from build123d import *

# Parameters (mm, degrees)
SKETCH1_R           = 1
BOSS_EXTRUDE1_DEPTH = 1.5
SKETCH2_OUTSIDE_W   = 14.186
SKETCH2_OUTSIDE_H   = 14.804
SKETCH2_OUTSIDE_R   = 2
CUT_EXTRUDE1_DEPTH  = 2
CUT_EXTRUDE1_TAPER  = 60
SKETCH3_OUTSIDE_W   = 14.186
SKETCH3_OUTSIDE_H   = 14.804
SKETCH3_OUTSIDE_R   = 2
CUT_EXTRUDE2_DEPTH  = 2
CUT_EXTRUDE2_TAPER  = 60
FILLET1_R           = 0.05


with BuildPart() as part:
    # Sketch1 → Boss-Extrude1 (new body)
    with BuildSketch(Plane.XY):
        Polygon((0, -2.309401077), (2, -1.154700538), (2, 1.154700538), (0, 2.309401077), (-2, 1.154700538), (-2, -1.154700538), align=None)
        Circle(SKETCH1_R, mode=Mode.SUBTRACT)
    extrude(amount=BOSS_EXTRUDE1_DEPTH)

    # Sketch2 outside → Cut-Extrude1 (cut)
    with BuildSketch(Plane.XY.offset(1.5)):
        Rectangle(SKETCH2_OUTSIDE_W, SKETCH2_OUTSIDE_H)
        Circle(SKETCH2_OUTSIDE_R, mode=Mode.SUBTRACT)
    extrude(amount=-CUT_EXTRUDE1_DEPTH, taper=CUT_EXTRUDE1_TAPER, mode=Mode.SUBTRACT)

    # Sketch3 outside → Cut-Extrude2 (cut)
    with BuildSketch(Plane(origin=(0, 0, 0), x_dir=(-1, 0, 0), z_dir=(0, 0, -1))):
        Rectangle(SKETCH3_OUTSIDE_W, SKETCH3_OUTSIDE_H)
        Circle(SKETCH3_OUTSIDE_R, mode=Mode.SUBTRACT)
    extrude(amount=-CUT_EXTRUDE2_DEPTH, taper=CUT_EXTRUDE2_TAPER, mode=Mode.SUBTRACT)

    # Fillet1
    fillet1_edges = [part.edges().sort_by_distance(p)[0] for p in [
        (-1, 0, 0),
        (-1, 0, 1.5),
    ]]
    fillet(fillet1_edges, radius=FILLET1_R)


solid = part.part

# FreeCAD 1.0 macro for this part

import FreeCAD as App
import Part
import Sketcher

V = App.Vector
Q = App.Units.Quantity


def edges_at(feature, points):
    """Names of the edges that pass closest to the given points."""
    edges = feature.Shape.Edges
    near = lambda p: min(range(len(edges)), key=lambda i: edges[i].distToShape(Part.Vertex(*p))[0])
    return sorted({f"Edge{near(p) + 1}" for p in points})


def add_polygon(sketch, points):
    """Adds a closed chain of lines whose ends are joined by coincident constraints."""
    first, n = sketch.GeometryCount, len(points)
    for a, b in zip(points, points[1:] + points[:1]):
        sketch.addGeometry(Part.LineSegment(App.Vector(*a, 0), App.Vector(*b, 0)), False)
    for i in range(n):
        sketch.addConstraint(Sketcher.Constraint("Coincident", first + i, 2, first + (i + 1) % n, 1))

doc = App.newDocument("Part")
body = doc.addObject("PartDesign::Body", "Body")

# Sketch on XY plane
sketch1 = doc.addObject("Sketcher::SketchObject", "Sketch")
body.addObject(sketch1)
sketch1.AttachmentSupport = (doc.XY_Plane, [""])
sketch1.MapMode = "FlatFace"
add_polygon(sketch1, [(0, -2.3), (2, -1.2), (2, 1.2), (0, 2.3), (-2, 1.2), (-2, -1.2)])  # lines 0-5
sketch1.addGeometry(Part.Circle(V(0, 0, 0), V(0, 0, 1), 1), False)  # 6
sketch1.addConstraint([
    Sketcher.Constraint("Vertical", 1),
    Sketcher.Constraint("Vertical", 4),
    Sketcher.Constraint("Coincident", 6, 3, -1, 1),
    Sketcher.Constraint("Symmetric", 0, 2, 3, 2, -1, 1),
    Sketcher.Constraint("Symmetric", 2, 2, 5, 2, -1, 1),
    Sketcher.Constraint("PointOnObject", 2, 2, -2),
    Sketcher.Constraint("Parallel", 2, 5),
    Sketcher.Constraint("Horizontal", 1, 2, 3, 2),
    Sketcher.Constraint("Diameter", 6, Q("2 mm")),
    Sketcher.Constraint("Angle", 0, Q("30 deg")),
    Sketcher.Constraint("DistanceX", -1, 1, 0, 2, Q("2 mm")),
    Sketcher.Constraint("DistanceY", 1, 1, 1, 2, Q("2.309401 mm")),
])
pad1 = doc.addObject("PartDesign::Pad", "Pad")
body.addObject(pad1)
pad1.Profile = sketch1
pad1.Length = 1.5

# Sketch on XY plane
sketch2 = doc.addObject("Sketcher::SketchObject", "Sketch001")
body.addObject(sketch2)
sketch2.AttachmentSupport = (doc.XY_Plane, [""])
sketch2.MapMode = "FlatFace"
sketch2.AttachmentOffset = App.Placement(V(0, 0, 1.5), App.Rotation())
add_polygon(sketch2, [(-7.1, 7.4), (-7.1, -7.4), (7.1, -7.4), (7.1, 7.4)])  # lines 0-3
sketch2.addGeometry(Part.Circle(V(0, 0, 0), V(0, 0, 1), 2), False)  # 4
sketch2.addConstraint([
    Sketcher.Constraint("Vertical", 0),
    Sketcher.Constraint("Horizontal", 1),
    Sketcher.Constraint("Vertical", 2),
    Sketcher.Constraint("Horizontal", 3),
    Sketcher.Constraint("Coincident", 4, 3, -1, 1),
    Sketcher.Constraint("Symmetric", 0, 2, 2, 2, -1, 1),
    Sketcher.Constraint("Diameter", 4, Q("4 mm")),
    Sketcher.Constraint("DistanceX", 1, 1, 1, 2, Q("14.186 mm")),
    Sketcher.Constraint("DistanceY", 0, 2, 0, 1, Q("14.804 mm")),
])
pocket1 = doc.addObject("PartDesign::Pocket", "Pocket")
body.addObject(pocket1)
pocket1.Profile = sketch2
pocket1.Length = 2
pocket1.TaperAngle = 60

# Sketch on XY plane
sketch3 = doc.addObject("Sketcher::SketchObject", "Sketch002")
body.addObject(sketch3)
sketch3.AttachmentSupport = (doc.XY_Plane, [""])
sketch3.MapMode = "FlatFace"
add_polygon(sketch3, [(7.1, 7.4), (7.1, -7.4), (-7.1, -7.4), (-7.1, 7.4)])  # lines 0-3
sketch3.addGeometry(Part.Circle(V(0, 0, 0), V(0, 0, 1), 2), False)  # 4
sketch3.addConstraint([
    Sketcher.Constraint("Vertical", 0),
    Sketcher.Constraint("Horizontal", 1),
    Sketcher.Constraint("Vertical", 2),
    Sketcher.Constraint("Horizontal", 3),
    Sketcher.Constraint("Coincident", 4, 3, -1, 1),
    Sketcher.Constraint("Symmetric", 0, 2, 2, 2, -1, 1),
    Sketcher.Constraint("Diameter", 4, Q("4 mm")),
    Sketcher.Constraint("DistanceX", 1, 2, 1, 1, Q("14.186 mm")),
    Sketcher.Constraint("DistanceY", 0, 2, 0, 1, Q("14.804 mm")),
])
pocket2 = doc.addObject("PartDesign::Pocket", "Pocket001")
body.addObject(pocket2)
pocket2.Profile = sketch3
pocket2.Length = 2
pocket2.Reversed = True
pocket2.TaperAngle = 60
doc.recompute()

fillet = doc.addObject("PartDesign::Fillet", "Fillet")
body.addObject(fillet)
fillet.Base = (pocket2, edges_at(pocket2, [(-1, 0, 0), (-1, 0, 1.5)]))
fillet.Radius = 0.05

doc.recompute()
